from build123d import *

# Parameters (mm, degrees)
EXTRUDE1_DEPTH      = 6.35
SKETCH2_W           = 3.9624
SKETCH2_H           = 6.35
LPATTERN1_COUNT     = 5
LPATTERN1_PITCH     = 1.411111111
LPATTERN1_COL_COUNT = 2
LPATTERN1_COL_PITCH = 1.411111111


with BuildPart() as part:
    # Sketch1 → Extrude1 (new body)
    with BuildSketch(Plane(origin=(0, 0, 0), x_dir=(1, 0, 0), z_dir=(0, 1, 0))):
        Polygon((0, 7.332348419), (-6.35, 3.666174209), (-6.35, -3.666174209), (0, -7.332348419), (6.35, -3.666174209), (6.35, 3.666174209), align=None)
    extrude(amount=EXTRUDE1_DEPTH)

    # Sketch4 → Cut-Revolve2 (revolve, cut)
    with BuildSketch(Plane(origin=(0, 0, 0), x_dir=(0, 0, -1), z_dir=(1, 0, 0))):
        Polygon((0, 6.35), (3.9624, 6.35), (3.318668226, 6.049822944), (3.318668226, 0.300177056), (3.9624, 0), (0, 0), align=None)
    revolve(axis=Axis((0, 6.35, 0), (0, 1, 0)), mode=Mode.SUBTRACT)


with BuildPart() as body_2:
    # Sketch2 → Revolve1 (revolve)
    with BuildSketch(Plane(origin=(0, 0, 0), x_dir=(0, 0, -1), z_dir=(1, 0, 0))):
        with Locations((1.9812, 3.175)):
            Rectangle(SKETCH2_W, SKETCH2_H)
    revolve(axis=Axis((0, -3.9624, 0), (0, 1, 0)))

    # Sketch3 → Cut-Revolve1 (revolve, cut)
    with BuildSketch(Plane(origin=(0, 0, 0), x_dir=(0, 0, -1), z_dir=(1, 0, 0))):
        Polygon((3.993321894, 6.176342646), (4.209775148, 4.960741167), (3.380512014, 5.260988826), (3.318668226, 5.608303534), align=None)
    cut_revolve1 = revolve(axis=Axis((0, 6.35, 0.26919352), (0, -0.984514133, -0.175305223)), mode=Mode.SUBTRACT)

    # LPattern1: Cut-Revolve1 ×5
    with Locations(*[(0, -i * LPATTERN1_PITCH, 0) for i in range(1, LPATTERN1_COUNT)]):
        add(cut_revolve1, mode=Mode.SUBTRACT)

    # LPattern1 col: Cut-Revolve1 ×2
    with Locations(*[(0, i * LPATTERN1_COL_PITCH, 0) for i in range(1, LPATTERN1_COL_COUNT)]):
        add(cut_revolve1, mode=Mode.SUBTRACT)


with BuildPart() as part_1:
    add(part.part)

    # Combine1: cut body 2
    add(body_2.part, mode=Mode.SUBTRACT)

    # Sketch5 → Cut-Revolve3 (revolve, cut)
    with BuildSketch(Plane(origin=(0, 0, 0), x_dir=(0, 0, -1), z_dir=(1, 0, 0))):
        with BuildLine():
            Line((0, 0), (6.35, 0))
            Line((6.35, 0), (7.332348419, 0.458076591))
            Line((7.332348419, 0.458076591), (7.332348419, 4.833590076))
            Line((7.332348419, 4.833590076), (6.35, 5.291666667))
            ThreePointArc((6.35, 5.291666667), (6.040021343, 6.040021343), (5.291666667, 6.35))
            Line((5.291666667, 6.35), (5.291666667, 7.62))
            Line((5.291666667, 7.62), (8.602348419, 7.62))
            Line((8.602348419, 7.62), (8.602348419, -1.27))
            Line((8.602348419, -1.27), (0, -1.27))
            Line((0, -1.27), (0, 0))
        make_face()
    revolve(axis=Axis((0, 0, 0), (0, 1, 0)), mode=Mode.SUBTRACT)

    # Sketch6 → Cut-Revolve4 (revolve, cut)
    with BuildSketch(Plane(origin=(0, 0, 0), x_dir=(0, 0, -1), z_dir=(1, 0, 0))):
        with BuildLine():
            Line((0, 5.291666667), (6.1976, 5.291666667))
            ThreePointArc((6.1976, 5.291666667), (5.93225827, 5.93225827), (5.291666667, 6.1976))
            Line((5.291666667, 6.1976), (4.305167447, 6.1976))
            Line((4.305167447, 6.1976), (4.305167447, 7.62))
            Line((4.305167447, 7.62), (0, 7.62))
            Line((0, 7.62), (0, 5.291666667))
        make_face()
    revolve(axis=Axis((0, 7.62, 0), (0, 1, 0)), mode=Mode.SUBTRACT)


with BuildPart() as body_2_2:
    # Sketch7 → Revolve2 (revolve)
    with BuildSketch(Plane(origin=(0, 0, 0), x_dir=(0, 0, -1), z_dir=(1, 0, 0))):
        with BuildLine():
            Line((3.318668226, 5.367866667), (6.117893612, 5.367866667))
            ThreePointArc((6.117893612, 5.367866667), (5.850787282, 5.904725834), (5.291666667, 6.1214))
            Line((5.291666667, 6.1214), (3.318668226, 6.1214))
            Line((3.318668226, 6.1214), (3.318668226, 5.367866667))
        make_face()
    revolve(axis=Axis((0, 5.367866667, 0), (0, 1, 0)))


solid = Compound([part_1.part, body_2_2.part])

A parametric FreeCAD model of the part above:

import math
import FreeCAD as App
import Part
import Sketcher
Q = App.Units.Quantity


def add_polygon(sketch, points):
    """Adds a closed chain of lines whose ends are joined by coincident constraints."""
    first, n = sketch.GeometryCount, len(points)
    for a, b in zip(points, points[1:] + points[:1]):
        sketch.addGeometry(Part.LineSegment(App.Vector(*a, 0), App.Vector(*b, 0)), False)
    for i in range(n):
        sketch.addConstraint(Sketcher.Constraint("Coincident", first + i, 2, first + (i + 1) % n, 1))

doc = App.newDocument("Part")
body = doc.addObject("PartDesign::Body", "Body")

# Sketch on XZ plane
sketch1 = body.newObject("Sketcher::SketchObject", "Sketch")
sketch1.AttachmentSupport = (doc.getObject("XZ_Plane"), [""])
sketch1.MapMode = "FlatFace"
add_polygon(sketch1, [(0, -7), (-6, -4), (-6, 4), (0, 7), (6, 4), (6, -4)])  # lines 0-5
sketch1.addConstraint([
    Sketcher.Constraint("Vertical", 1),
    Sketcher.Constraint("Vertical", 4),
    Sketcher.Constraint("Symmetric", 0, 2, 3, 2, -1, 1),
    Sketcher.Constraint("Symmetric", 2, 2, 5, 2, -1, 1),
    Sketcher.Constraint("PointOnObject", 2, 2, -2),
    Sketcher.Constraint("Parallel", 2, 5),
    Sketcher.Constraint("Horizontal", 1, 2, 3, 2),
    Sketcher.Constraint("Angle", 0, Q("150 deg")),
    Sketcher.Constraint("DistanceX", 1, 2, 3, 2, Q("0.5 in")),
    Sketcher.Constraint("DistanceY", 1, 1, 1, 2, Q("7.332348 mm")),
])
pad1 = body.newObject("PartDesign::Pad", "Pad")
pad1.Profile = sketch1
pad1.Length = Q("0.25 in")
pad1.Reversed = True

# Sketch on YZ plane
sketch2 = body.newObject("Sketcher::SketchObject", "Sketch001")
sketch2.AttachmentSupport = (doc.getObject("YZ_Plane"), [""])
sketch2.MapMode = "FlatFace"
add_polygon(sketch2, [(6.3, -4), (6.3, 0), (0, 0), (0, -4), (0.3, -3.3), (6, -3.3)])  # lines 0-5
sketch2.addConstraint([
    Sketcher.Constraint("Vertical", 0),
    Sketcher.Constraint("Horizontal", 1),
    Sketcher.Constraint("Vertical", 2),
    Sketcher.Constraint("Horizontal", 4),
    Sketcher.Constraint("Coincident", 1, 2, -1, 1),
    Sketcher.Constraint("Horizontal", 2, 2, 5, 2),
    Sketcher.Constraint("Equal", 3, 5),
    Sketcher.Constraint("Angle", 3, Q("65 deg")),
    Sketcher.Constraint("DistanceX", 1, 2, 1, 1, Q("0.25 in")),
    Sketcher.Constraint("DistanceY", 0, 1, 0, 2, Q("0.156 in")),
    Sketcher.Constraint("Distance", 3, Q("0.710279 mm")),
])
groove = body.newObject("PartDesign::Groove", "Groove")
groove.Profile = sketch2
groove.ReferenceAxis = (sketch2, ["H_Axis"])
groove.Angle = 360
body2 = doc.addObject("PartDesign::Body", "Body001")

# Sketch on YZ plane
sketch3 = body2.newObject("Sketcher::SketchObject", "Sketch002")
sketch3.AttachmentSupport = (doc.getObject("YZ_Plane001"), [""])
sketch3.MapMode = "FlatFace"
add_polygon(sketch3, [(6.3, 0), (0, 0), (0, -4), (6.3, -4)])  # lines 0-3
sketch3.addConstraint([
    Sketcher.Constraint("Horizontal", 0),
    Sketcher.Constraint("Vertical", 1),
    Sketcher.Constraint("Horizontal", 2),
    Sketcher.Constraint("Vertical", 3),
    Sketcher.Constraint("Coincident", 0, 2, -1, 1),
    Sketcher.Constraint("DistanceX", 0, 2, 0, 1, Q("0.25 in")),
    Sketcher.Constraint("DistanceY", 1, 2, 1, 1, Q("0.156 in")),
])
revolution = body2.newObject("PartDesign::Revolution", "Revolution")
revolution.Profile = sketch3
revolution.ReferenceAxis = (sketch3, ["H_Axis"])
revolution.Angle = 360

# Sketch on YZ plane
sketch4 = body2.newObject("Sketcher::SketchObject", "Sketch003")
sketch4.AttachmentSupport = (doc.getObject("YZ_Plane001"), [""])
sketch4.MapMode = "FlatFace"
add_polygon(sketch4, [(4.96, -4.21), (6.18, -3.99), (5.61, -3.32), (5.26, -3.38)])  # lines 0-3
sketch4.addGeometry(Part.LineSegment(App.Vector(5.45, 0.11, 0), App.Vector(4.23, -0.11, 0)), True)  # axis
sketch4.addConstraint([
    Sketcher.Constraint("Parallel", 0, 2),
    Sketcher.Constraint("Parallel", 2, 4),
    Sketcher.Constraint("Equal", 1, 3),
    Sketcher.Constraint("Equal", 0, 4),
    Sketcher.Constraint("DistanceY", 3, 2, 4, 1, Q("0.1700001 in")),
    Sketcher.Constraint("DistanceX", 3, 2, 0, 2, Q("1.215601 mm")),
    Sketcher.Constraint("DistanceY", 0, 2, -1, 1, Q("3.993322 mm")),
    Sketcher.Constraint("DistanceY", 1, 2, -1, 1, Q("3.318668 mm")),
    Sketcher.Constraint("DistanceX", -1, 1, 2, 2, Q("5.260989 mm")),
    Sketcher.Constraint("DistanceX", -1, 1, 3, 2, Q("4.960741 mm")),
    Sketcher.Constraint("DistanceX", -1, 1, 4, 1, Q("5.44601 mm")),
    Sketcher.Constraint("DistanceX", 1, 2, 0, 2, Q("0.568039 mm")),
])
groove2 = body2.newObject("PartDesign::Groove", "Groove001")
groove2.Profile = sketch4
groove2.ReferenceAxis = (sketch4, ["Axis0"])
groove2.Angle = 360
doc.recompute()

linearpattern = body2.newObject("PartDesign::LinearPattern", "LinearPattern")
linearpattern.Originals = [groove2]
linearpattern.Direction = (doc.getObject("Y_Axis001"), [""])
linearpattern.Mode = "offset"
linearpattern.Offset = 1.411111
linearpattern.Occurrences = 5
linearpattern.Reversed = True
body2.Tip = linearpattern
doc.recompute()

linearpattern2 = body2.newObject("PartDesign::LinearPattern", "LinearPattern001")
linearpattern2.Originals = [groove2]
linearpattern2.Direction = (doc.getObject("Y_Axis001"), [""])
linearpattern2.Mode = "offset"
linearpattern2.Offset = 1.411111
linearpattern2.Occurrences = 2
body2.Tip = linearpattern2
doc.recompute()

boolean = body.newObject("PartDesign::Boolean", "Boolean")
boolean.Type = "Cut"
boolean.addObjects([body2])

# Sketch on YZ plane
sketch5 = body.newObject("Sketcher::SketchObject", "Sketch004")
sketch5.AttachmentSupport = (doc.getObject("YZ_Plane"), [""])
sketch5.MapMode = "FlatFace"
sketch5.addGeometry([
    Part.LineSegment(App.Vector(0, -6.3, 0), App.Vector(0, 0, 0)),  # 0
    Part.LineSegment(App.Vector(0, 0, 0), App.Vector(-1.3, 0, 0)),  # 1
    Part.LineSegment(App.Vector(-1.3, 0, 0), App.Vector(-1.3, -8.6, 0)),  # 2
    Part.LineSegment(App.Vector(-1.3, -8.6, 0), App.Vector(7.6, -8.6, 0)),  # 3
    Part.LineSegment(App.Vector(7.6, -8.6, 0), App.Vector(7.6, -5.3, 0)),  # 4
    Part.LineSegment(App.Vector(7.6, -5.3, 0), App.Vector(6.3, -5.3, 0)),  # 5
    Part.ArcOfCircle(Part.Circle(App.Vector(5.3, -5.3, 0), App.Vector(0, 0, 1), 1.1), math.radians(-90), math.radians(0)),  # 6
    Part.LineSegment(App.Vector(5.3, -6.3, 0), App.Vector(4.8, -7.3, 0)),  # 7
    Part.LineSegment(App.Vector(4.8, -7.3, 0), App.Vector(0.5, -7.3, 0)),  # 8
    Part.LineSegment(App.Vector(0.5, -7.3, 0), App.Vector(0, -6.3, 0)),  # 9
], False)
sketch5.addConstraint([
    Sketcher.Constraint("Coincident", 0, 2, 1, 1),
    Sketcher.Constraint("Coincident", 1, 2, 2, 1),
    Sketcher.Constraint("Coincident", 2, 2, 3, 1),
    Sketcher.Constraint("Coincident", 3, 2, 4, 1),
    Sketcher.Constraint("Coincident", 4, 2, 5, 1),
    Sketcher.Constraint("Coincident", 5, 2, 6, 2),
    Sketcher.Constraint("Coincident", 6, 1, 7, 1),
    Sketcher.Constraint("Coincident", 7, 2, 8, 1),
    Sketcher.Constraint("Coincident", 8, 2, 9, 1),
    Sketcher.Constraint("Coincident", 9, 2, 0, 1),
    Sketcher.Constraint("Vertical", 0),
    Sketcher.Constraint("Horizontal", 1),
    Sketcher.Constraint("Vertical", 2),
    Sketcher.Constraint("Horizontal", 3),
    Sketcher.Constraint("Vertical", 4),
    Sketcher.Constraint("Horizontal", 5),
    Sketcher.Constraint("Horizontal", 8),
    Sketcher.Constraint("Coincident", 0, 2, -1, 1),
    Sketcher.Constraint("Horizontal", 6, 3, 4, 2),
    Sketcher.Constraint("Horizontal", 6, 1, 9, 2),
    Sketcher.Constraint("Equal", 1, 5),
    Sketcher.Constraint("Equal", 7, 9),
    Sketcher.Constraint("Angle", 7, Q("-115 deg")),
    Sketcher.Constraint("DistanceX", 1, 2, 1, 1, Q("0.05 in")),
    Sketcher.Constraint("DistanceX", 3, 1, 3, 2, Q("0.35 in")),
    Sketcher.Constraint("DistanceY", 0, 1, 0, 2, Q("0.25 in")),
    Sketcher.Constraint("DistanceY", 3, 2, 7, 2, Q("0.05 in")),
    Sketcher.Constraint("Radius", 6, Q("1.058333 mm")),
    Sketcher.Constraint("Distance", 7, Q("1.083902 mm")),
    Sketcher.Constraint("DistanceX", 8, 2, 8, 1, Q("4.375513 mm")),
])
groove3 = body.newObject("PartDesign::Groove", "Groove002")
groove3.Profile = sketch5
groove3.ReferenceAxis = (sketch5, ["H_Axis"])
groove3.Angle = 360

# Sketch on YZ plane
sketch6 = body.newObject("Sketcher::SketchObject", "Sketch005")
sketch6.AttachmentSupport = (doc.getObject("YZ_Plane"), [""])
sketch6.MapMode = "FlatFace"
sketch6.addGeometry([
    Part.LineSegment(App.Vector(5.3, 0, 0), App.Vector(5.3, -6.2, 0)),  # 0
    Part.ArcOfCircle(Part.Circle(App.Vector(5.3, -5.3, 0), App.Vector(0, 0, 1), 0.9), math.radians(-90), math.radians(0)),  # 1
    Part.LineSegment(App.Vector(6.2, -5.3, 0), App.Vector(6.2, -4.3, 0)),  # 2
    Part.LineSegment(App.Vector(6.2, -4.3, 0), App.Vector(7.6, -4.3, 0)),  # 3
    Part.LineSegment(App.Vector(7.6, -4.3, 0), App.Vector(7.6, 0, 0)),  # 4
    Part.LineSegment(App.Vector(7.6, 0, 0), App.Vector(5.3, 0, 0)),  # 5
], False)
sketch6.addConstraint([
    Sketcher.Constraint("Coincident", 0, 2, 1, 1),
    Sketcher.Constraint("Tangent", 1, 2, 2, 1),
    Sketcher.Constraint("Coincident", 2, 2, 3, 1),
    Sketcher.Constraint("Coincident", 3, 2, 4, 1),
    Sketcher.Constraint("Coincident", 4, 2, 5, 1),
    Sketcher.Constraint("Coincident", 5, 2, 0, 1),
    Sketcher.Constraint("Vertical", 0),
    Sketcher.Constraint("Vertical", 2),
    Sketcher.Constraint("Horizontal", 3),
    Sketcher.Constraint("Vertical", 4),
    Sketcher.Constraint("Horizontal", 5),
    Sketcher.Constraint("PointOnObject", 4, 2, -1),
    Sketcher.Constraint("Vertical", 1, 3, 0, 2),
    Sketcher.Constraint("DistanceX", -1, 1, 3, 2, Q("0.3 in")),
    Sketcher.Constraint("DistanceX", 3, 1, 3, 2, Q("0.056 in")),
    Sketcher.Constraint("DistanceY", 0, 2, 0, 1, Q("0.244 in")),
    Sketcher.Constraint("DistanceY", 2, 1, 2, 2, Q("0.986499 mm")),
    Sketcher.Constraint("Radius", 1, Q("0.905933 mm")),
])
groove4 = body.newObject("PartDesign::Groove", "Groove003")
groove4.Profile = sketch6
groove4.ReferenceAxis = (sketch6, ["H_Axis"])
groove4.Angle = 360
body3 = doc.addObject("PartDesign::Body", "Body002")

# Sketch on YZ plane
sketch7 = body3.newObject("Sketcher::SketchObject", "Sketch006")
sketch7.AttachmentSupport = (doc.getObject("YZ_Plane002"), [""])
sketch7.MapMode = "FlatFace"
sketch7.addGeometry([
    Part.LineSegment(App.Vector(5.4, -3.3, 0), App.Vector(5.4, -6.1, 0)),
    Part.ArcOfCircle(Part.Circle(App.Vector(5.3, -5.3, 0), App.Vector(0, 0, 1), 0.8), math.radians(-85), math.radians(0)),
    Part.LineSegment(App.Vector(6.1, -5.3, 0), App.Vector(6.1, -3.3, 0)),
    Part.LineSegment(App.Vector(6.1, -3.3, 0), App.Vector(5.4, -3.3, 0)),
], False)
sketch7.addConstraint([
    Sketcher.Constraint("Coincident", 0, 2, 1, 1),
    Sketcher.Constraint("Tangent", 1, 2, 2, 1),
    Sketcher.Constraint("Coincident", 2, 2, 3, 1),
    Sketcher.Constraint("Coincident", 3, 2, 0, 1),
    Sketcher.Constraint("Vertical", 0),
    Sketcher.Constraint("Vertical", 2),
    Sketcher.Constraint("Horizontal", 3),
    Sketcher.Constraint("DistanceX", -1, 1, 1, 2, Q("0.241 in")),
    Sketcher.Constraint("DistanceX", 1, 3, 0, 2, Q("0.003 in")),
    Sketcher.Constraint("DistanceY", 2, 1, 2, 2, Q("1.972998 mm")),
    Sketcher.Constraint("Radius", 1, Q("0.829733 mm")),
    Sketcher.Constraint("DistanceY", 2, 2, -1, 1, Q("3.318668 mm")),
])
revolution2 = body3.newObject("PartDesign::Revolution", "Revolution001")
revolution2.Profile = sketch7
revolution2.ReferenceAxis = (sketch7, ["H_Axis"])
revolution2.Angle = 360

doc.recompute()
